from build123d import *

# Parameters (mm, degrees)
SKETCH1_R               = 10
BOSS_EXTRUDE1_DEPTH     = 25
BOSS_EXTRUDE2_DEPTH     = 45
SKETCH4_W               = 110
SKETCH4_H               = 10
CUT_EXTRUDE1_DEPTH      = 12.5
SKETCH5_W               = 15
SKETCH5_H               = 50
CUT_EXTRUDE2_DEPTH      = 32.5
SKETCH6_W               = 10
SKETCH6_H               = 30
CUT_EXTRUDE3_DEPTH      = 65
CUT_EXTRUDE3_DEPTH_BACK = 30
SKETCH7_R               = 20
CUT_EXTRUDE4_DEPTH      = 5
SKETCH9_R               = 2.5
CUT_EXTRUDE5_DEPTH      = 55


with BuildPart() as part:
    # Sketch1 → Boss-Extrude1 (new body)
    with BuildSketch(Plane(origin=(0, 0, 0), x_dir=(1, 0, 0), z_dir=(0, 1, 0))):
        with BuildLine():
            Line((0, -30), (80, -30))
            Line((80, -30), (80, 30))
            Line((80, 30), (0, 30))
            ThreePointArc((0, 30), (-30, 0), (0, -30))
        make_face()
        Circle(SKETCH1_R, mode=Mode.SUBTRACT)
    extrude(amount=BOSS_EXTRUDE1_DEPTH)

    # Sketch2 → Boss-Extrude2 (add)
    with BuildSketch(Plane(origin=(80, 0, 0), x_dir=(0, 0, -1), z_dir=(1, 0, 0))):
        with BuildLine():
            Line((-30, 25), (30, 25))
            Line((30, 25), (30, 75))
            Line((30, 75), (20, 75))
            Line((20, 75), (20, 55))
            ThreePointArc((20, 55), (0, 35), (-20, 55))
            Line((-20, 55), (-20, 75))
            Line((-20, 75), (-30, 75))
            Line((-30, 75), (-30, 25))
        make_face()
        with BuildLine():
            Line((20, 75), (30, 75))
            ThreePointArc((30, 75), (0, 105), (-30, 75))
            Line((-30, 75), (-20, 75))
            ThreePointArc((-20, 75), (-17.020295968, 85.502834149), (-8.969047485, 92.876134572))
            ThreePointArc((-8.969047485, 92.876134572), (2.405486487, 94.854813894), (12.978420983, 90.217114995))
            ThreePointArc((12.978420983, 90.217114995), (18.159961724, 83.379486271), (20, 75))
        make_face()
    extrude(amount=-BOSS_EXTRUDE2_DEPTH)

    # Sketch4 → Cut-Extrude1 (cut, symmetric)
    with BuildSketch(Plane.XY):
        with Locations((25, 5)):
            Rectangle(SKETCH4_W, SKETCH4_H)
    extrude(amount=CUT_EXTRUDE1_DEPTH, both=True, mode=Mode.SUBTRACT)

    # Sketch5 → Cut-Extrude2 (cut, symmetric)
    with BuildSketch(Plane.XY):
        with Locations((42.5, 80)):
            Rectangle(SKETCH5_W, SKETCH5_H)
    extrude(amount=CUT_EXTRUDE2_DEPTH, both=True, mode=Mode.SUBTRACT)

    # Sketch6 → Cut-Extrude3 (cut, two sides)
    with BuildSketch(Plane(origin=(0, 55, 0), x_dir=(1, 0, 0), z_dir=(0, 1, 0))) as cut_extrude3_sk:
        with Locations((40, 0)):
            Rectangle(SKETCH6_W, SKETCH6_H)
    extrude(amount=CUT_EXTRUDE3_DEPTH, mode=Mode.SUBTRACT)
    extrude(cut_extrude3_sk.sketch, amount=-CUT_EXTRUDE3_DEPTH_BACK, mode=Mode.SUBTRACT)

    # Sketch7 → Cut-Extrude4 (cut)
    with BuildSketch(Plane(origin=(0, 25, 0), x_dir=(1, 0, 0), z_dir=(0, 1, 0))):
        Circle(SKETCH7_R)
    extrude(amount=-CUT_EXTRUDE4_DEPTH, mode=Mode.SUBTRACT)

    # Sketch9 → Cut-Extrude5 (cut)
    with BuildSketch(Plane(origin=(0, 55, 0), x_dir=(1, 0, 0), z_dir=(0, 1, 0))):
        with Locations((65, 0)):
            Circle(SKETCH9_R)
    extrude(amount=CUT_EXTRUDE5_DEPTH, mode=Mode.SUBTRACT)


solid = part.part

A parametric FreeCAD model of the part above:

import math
import FreeCAD as App
import Part
import Sketcher

V = App.Vector


def add_polygon(sketch, points):
    """Adds a closed chain of lines whose ends are joined by coincident constraints."""
    first, n = sketch.GeometryCount, len(points)
    for a, b in zip(points, points[1:] + points[:1]):
        sketch.addGeometry(Part.LineSegment(App.Vector(*a, 0), App.Vector(*b, 0)), False)
    for i in range(n):
        sketch.addConstraint(Sketcher.Constraint("Coincident", first + i, 2, first + (i + 1) % n, 1))

doc = App.newDocument("Part")
body = doc.addObject("PartDesign::Body", "Body")

sketch1 = body.newObject("Sketcher::SketchObject", "Sketch")
sketch1.AttachmentSupport = (doc.getObject("XZ_Plane"), [""])
sketch1.MapMode = "FlatFace"
sketch1.addGeometry([
    Part.LineSegment(V(0, 30, 0), V(80, 30, 0)),
    Part.LineSegment(V(80, 30, 0), V(80, -30, 0)),
    Part.LineSegment(V(80, -30, 0), V(0, -30, 0)),
    Part.ArcOfCircle(Part.Circle(V(0, 0, 0), V(0, 0, 1), 30), math.radians(90), math.radians(270)),
    Part.Circle(V(0, 0, 0), V(0, 0, 1), 10),
], False)
sketch1.addConstraint([
    Sketcher.Constraint("Coincident", 0, 2, 1, 1),
    Sketcher.Constraint("Coincident", 1, 2, 2, 1),
    Sketcher.Constraint("Tangent", 2, 2, 3, 2),
    Sketcher.Constraint("Tangent", 3, 1, 0, 1),
    Sketcher.Constraint("Horizontal", 0),
    Sketcher.Constraint("Vertical", 1),
    Sketcher.Constraint("Horizontal", 2),
    Sketcher.Constraint("Coincident", 3, 3, -1, 1),
    Sketcher.Constraint("Coincident", 4, 3, -1, 1),
    Sketcher.Constraint("Diameter", 4, 20.0),
    Sketcher.Constraint("Radius", 3, 30.0),
    Sketcher.Constraint("DistanceX", 0, 1, 0, 2, 80.0),
])
pad1 = body.newObject("PartDesign::Pad", "Pad")
pad1.Profile = sketch1
pad1.Length = 25
pad1.Reversed = True

sketch2 = body.newObject("Sketcher::SketchObject", "Sketch001")
sketch2.AttachmentSupport = (doc.getObject("YZ_Plane"), [""])
sketch2.MapMode = "FlatFace"
sketch2.AttachmentOffset = App.Placement(V(0, 0, 80), App.Rotation())
sketch2.addGeometry([
    Part.LineSegment(V(25, 30, 0), V(25, -30, 0)),
    Part.LineSegment(V(25, -30, 0), V(75, -30, 0)),
    Part.ArcOfCircle(Part.Circle(V(75, 0, 0), V(0, 0, 1), 30), math.radians(-90), math.radians(90)),
    Part.LineSegment(V(75, 30, 0), V(25, 30, 0)),
    Part.LineSegment(V(75, -20, 0), V(55, -20, 0)),
    Part.ArcOfCircle(Part.Circle(V(55, 0, 0), V(0, 0, 1), 20), math.radians(90), math.radians(270)),
    Part.LineSegment(V(55, 20, 0), V(75, 20, 0)),
    Part.ArcOfCircle(Part.Circle(V(75, 0, 0), V(0, 0, 1), 20), math.radians(26.644433), math.radians(90)),
    Part.ArcOfCircle(Part.Circle(V(75, 0, 0), V(0, 0, 1), 20), math.radians(-40.460303), math.radians(26.644433)),
    Part.ArcOfCircle(Part.Circle(V(75, 0, 0), V(0, 0, 1), 20), math.radians(-90), math.radians(-40.460303)),
], False)
sketch2.addConstraint([
    Sketcher.Constraint("Coincident", 0, 2, 1, 1),
    Sketcher.Constraint("Tangent", 1, 2, 2, 1),
    Sketcher.Constraint("Tangent", 2, 2, 3, 1),
    Sketcher.Constraint("Coincident", 3, 2, 0, 1),
    Sketcher.Constraint("Tangent", 4, 2, 5, 2),
    Sketcher.Constraint("Tangent", 5, 1, 6, 1),
    Sketcher.Constraint("Tangent", 6, 2, 7, 2),
    Sketcher.Constraint("Tangent", 7, 1, 8, 2),
    Sketcher.Constraint("Tangent", 8, 1, 9, 2),
    Sketcher.Constraint("Tangent", 9, 1, 4, 1),
    Sketcher.Constraint("Vertical", 0),
    Sketcher.Constraint("Horizontal", 1),
    Sketcher.Constraint("Horizontal", 3),
    Sketcher.Constraint("Horizontal", 4),
    Sketcher.Constraint("Horizontal", 6),
    Sketcher.Constraint("Coincident", 7, 3, 2, 3),
    Sketcher.Constraint("Coincident", 9, 3, 2, 3),
    Sketcher.Constraint("PointOnObject", 2, 3, -1),
    Sketcher.Constraint("Radius", 2, 30.0),
    Sketcher.Constraint("Radius", 5, 20.0),
    Sketcher.Constraint("DistanceX", 1, 1, 1, 2, 50.0),
    Sketcher.Constraint("DistanceX", 4, 2, 4, 1, 20.0),
    Sketcher.Constraint("DistanceX", -1, 1, 2, 3, 75.0),
    Sketcher.Constraint("DistanceY", 8, 1, -1, 1, 12.978421),
    Sketcher.Constraint("DistanceX", 8, 1, 7, 1, 2.65902),
])
pad2 = body.newObject("PartDesign::Pad", "Pad001")
pad2.Profile = sketch2
pad2.Length = 45
pad2.Reversed = True

sketch3 = body.newObject("Sketcher::SketchObject", "Sketch002")
sketch3.AttachmentSupport = (doc.getObject("XY_Plane"), [""])
sketch3.MapMode = "FlatFace"
add_polygon(sketch3, [(-30, 10), (-30, 0), (80, 0), (80, 10)])
sketch3.addConstraint([
    Sketcher.Constraint("Vertical", 0),
    Sketcher.Constraint("Horizontal", 1),
    Sketcher.Constraint("Vertical", 2),
    Sketcher.Constraint("Horizontal", 3),
    Sketcher.Constraint("PointOnObject", 0, 2, -1),
    Sketcher.Constraint("DistanceX", 1, 1, 1, 2, 110.0),
    Sketcher.Constraint("DistanceY", 0, 2, 0, 1, 10.0),
    Sketcher.Constraint("DistanceX", 0, 2, -1, 1, 30.0),
])
pocket1 = body.newObject("PartDesign::Pocket", "Pocket")
pocket1.Profile = sketch3
pocket1.Length = 25
pocket1.Midplane = True

sketch4 = body.newObject("Sketcher::SketchObject", "Sketch003")
sketch4.AttachmentSupport = (doc.getObject("XY_Plane"), [""])
sketch4.MapMode = "FlatFace"
add_polygon(sketch4, [(35, 105), (35, 55), (50, 55), (50, 105)])
sketch4.addConstraint([
    Sketcher.Constraint("Vertical", 0),
    Sketcher.Constraint("Horizontal", 1),
    Sketcher.Constraint("Vertical", 2),
    Sketcher.Constraint("Horizontal", 3),
    Sketcher.Constraint("DistanceX", 1, 1, 1, 2, 15.0),
    Sketcher.Constraint("DistanceY", 0, 2, 0, 1, 50.0),
    Sketcher.Constraint("DistanceX", -1, 1, 0, 2, 35.0),
    Sketcher.Constraint("DistanceY", -1, 1, 0, 2, 55.0),
])
pocket2 = body.newObject("PartDesign::Pocket", "Pocket001")
pocket2.Profile = sketch4
pocket2.Length = 65
pocket2.Midplane = True

sketch5 = body.newObject("Sketcher::SketchObject", "Sketch004")
sketch5.AttachmentSupport = (doc.getObject("XZ_Plane"), [""])
sketch5.MapMode = "FlatFace"
sketch5.AttachmentOffset = App.Placement(V(0, 0, -55), App.Rotation())
add_polygon(sketch5, [(35, -15), (35, 15), (45, 15), (45, -15)])
sketch5.addConstraint([
    Sketcher.Constraint("Vertical", 0),
    Sketcher.Constraint("Horizontal", 1),
    Sketcher.Constraint("Vertical", 2),
    Sketcher.Constraint("Horizontal", 3),
    Sketcher.Constraint("DistanceX", 1, 1, 1, 2, 10.0),
    Sketcher.Constraint("DistanceY", 0, 1, 0, 2, 30.0),
    Sketcher.Constraint("DistanceX", -1, 1, 0, 2, 35.0),
    Sketcher.Constraint("DistanceY", -1, 1, 0, 2, 15.0),
])
pocket3 = body.newObject("PartDesign::Pocket", "Pocket002")
pocket3.Profile = sketch5
pocket3.Type = "TwoLengths"
pocket3.Length = 65
pocket3.Length2 = 30

sketch6 = body.newObject("Sketcher::SketchObject", "Sketch005")
sketch6.AttachmentSupport = (doc.getObject("XZ_Plane"), [""])
sketch6.MapMode = "FlatFace"
sketch6.AttachmentOffset = App.Placement(V(0, 0, -25), App.Rotation())
sketch6.addGeometry(Part.Circle(V(0, 0, 0), V(0, 0, 1), 20), False)
sketch6.addConstraint([
    Sketcher.Constraint("Coincident", 0, 3, -1, 1),
    Sketcher.Constraint("Diameter", 0, 40.0),
])
pocket4 = body.newObject("PartDesign::Pocket", "Pocket003")
pocket4.Profile = sketch6
pocket4.Length = 5
pocket4.Reversed = True

sketch7 = body.newObject("Sketcher::SketchObject", "Sketch006")
sketch7.AttachmentSupport = (doc.getObject("XZ_Plane"), [""])
sketch7.MapMode = "FlatFace"
sketch7.AttachmentOffset = App.Placement(V(0, 0, -55), App.Rotation())
sketch7.addGeometry(Part.Circle(V(65, 0, 0), V(0, 0, 1), 2.5), False)
sketch7.addConstraint([
    Sketcher.Constraint("PointOnObject", 0, 3, -1),
    Sketcher.Constraint("Diameter", 0, 5.0),
    Sketcher.Constraint("DistanceX", -1, 1, 0, 3, 65.0),
])
pocket5 = body.newObject("PartDesign::Pocket", "Pocket004")
pocket5.Profile = sketch7
pocket5.Length = 55

doc.recompute()
